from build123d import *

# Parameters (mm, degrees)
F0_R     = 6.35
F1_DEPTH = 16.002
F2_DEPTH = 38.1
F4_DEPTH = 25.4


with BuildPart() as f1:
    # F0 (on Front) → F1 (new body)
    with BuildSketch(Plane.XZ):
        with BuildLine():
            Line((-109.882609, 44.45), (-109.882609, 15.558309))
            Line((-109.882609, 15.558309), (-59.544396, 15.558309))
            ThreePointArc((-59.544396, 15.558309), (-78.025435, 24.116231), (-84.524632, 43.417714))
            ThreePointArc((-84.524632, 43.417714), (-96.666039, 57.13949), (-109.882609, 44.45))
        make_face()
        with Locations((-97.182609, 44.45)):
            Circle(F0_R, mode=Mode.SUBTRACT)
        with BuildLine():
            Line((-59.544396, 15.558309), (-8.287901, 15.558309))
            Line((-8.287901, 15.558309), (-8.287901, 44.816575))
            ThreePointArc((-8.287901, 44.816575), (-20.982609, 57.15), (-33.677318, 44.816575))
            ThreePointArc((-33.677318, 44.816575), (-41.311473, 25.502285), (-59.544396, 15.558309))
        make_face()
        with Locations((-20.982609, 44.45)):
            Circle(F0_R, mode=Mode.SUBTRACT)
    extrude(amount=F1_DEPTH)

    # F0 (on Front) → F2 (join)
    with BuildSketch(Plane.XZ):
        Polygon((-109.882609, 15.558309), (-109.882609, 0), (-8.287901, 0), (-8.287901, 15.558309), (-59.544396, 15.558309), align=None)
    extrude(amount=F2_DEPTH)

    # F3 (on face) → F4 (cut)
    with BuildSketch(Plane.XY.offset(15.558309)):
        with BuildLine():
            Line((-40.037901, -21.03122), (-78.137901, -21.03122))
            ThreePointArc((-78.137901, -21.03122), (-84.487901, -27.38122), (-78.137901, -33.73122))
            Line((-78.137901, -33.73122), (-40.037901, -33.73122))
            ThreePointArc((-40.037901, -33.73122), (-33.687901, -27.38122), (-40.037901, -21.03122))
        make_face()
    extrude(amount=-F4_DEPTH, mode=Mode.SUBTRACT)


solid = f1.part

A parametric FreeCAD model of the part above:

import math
import FreeCAD as App
import Part
import Sketcher
from FreeCAD import Vector
Q = App.Units.Quantity

doc = App.newDocument("Part")
body = doc.addObject("PartDesign::Body", "Body")
body.AllowCompound = True

# Sketch on XZ plane
sketch1 = body.newObject("Sketcher::SketchObject", "Sketch")
sketch1.AttachmentSupport = (doc.getObject("XZ_Plane"), [""])
sketch1.MapMode = "FlatFace"
sketch1.addGeometry([
    Part.LineSegment(Vector(-110, 44, 0), Vector(-110, 16, 0)),  # 0
    Part.LineSegment(Vector(-110, 16, 0), Vector(-60, 16, 0)),  # 1
    Part.ArcOfCircle(Part.Circle(Vector(-59, 41, 0), Vector(0, 0, 1), 26), math.radians(175), math.radians(268)),  # 2
    Part.ArcOfCircle(Part.Circle(Vector(-97, 44, 0), Vector(0, 0, 1), 13), math.radians(-5), math.radians(180)),  # 3
    Part.Circle(Vector(-97, 44, 0), Vector(0, 0, 1), 6),  # 4
    Part.LineSegment(Vector(-60, 16, 0), Vector(-8, 16, 0)),  # 5
    Part.LineSegment(Vector(-8, 16, 0), Vector(-8, 45, 0)),  # 6
    Part.ArcOfCircle(Part.Circle(Vector(-21, 44, 0), Vector(0, 0, 1), 13), math.radians(2), math.radians(178)),  # 7
    Part.ArcOfCircle(Part.Circle(Vector(-64, 46, 0), Vector(0, 0, 1), 30), math.radians(-81), math.radians(-2)),  # 8
    Part.Circle(Vector(-21, 44, 0), Vector(0, 0, 1), 6),  # 9
], False)
sketch1.addConstraint([
    Sketcher.Constraint("Coincident", 0, 2, 1, 1),
    Sketcher.Constraint("Coincident", 1, 2, 2, 2),
    Sketcher.Constraint("Tangent", 2, 1, 3, 1),
    Sketcher.Constraint("Tangent", 3, 2, 0, 1),
    Sketcher.Constraint("Coincident", 5, 2, 6, 1),
    Sketcher.Constraint("Coincident", 6, 2, 7, 1),
    Sketcher.Constraint("Tangent", 7, 2, 8, 2),
    Sketcher.Constraint("Coincident", 8, 1, 5, 1),
    Sketcher.Constraint("Vertical", 0),
    Sketcher.Constraint("Horizontal", 1),
    Sketcher.Constraint("Horizontal", 5),
    Sketcher.Constraint("Vertical", 6),
    Sketcher.Constraint("Coincident", 4, 3, 3, 3),
    Sketcher.Constraint("Coincident", 9, 3, 7, 3),
    Sketcher.Constraint("Coincident", 8, 1, 1, 2),
    Sketcher.Constraint("Equal", 3, 7),
    Sketcher.Constraint("Equal", 4, 9),
    Sketcher.Constraint("Horizontal", 4, 3, 7, 3),
    Sketcher.Constraint("Horizontal", 6, 2, 7, 2),
    Sketcher.Constraint("Diameter", 4, Q("0.5 in")),
    Sketcher.Constraint("Radius", 3, Q("0.5 in")),
    Sketcher.Constraint("DistanceX", 4, 3, 7, 3, Q("3 in")),
    Sketcher.Constraint("DistanceY", -1, 1, 3, 3, Q("1.75 in")),
    Sketcher.Constraint("Radius", 2, Q("25.774164 mm")),
    Sketcher.Constraint("Radius", 8, Q("30.488665 mm")),
    Sketcher.Constraint("DistanceY", 2, 3, 8, 3, Q("0.1721998 in")),
    Sketcher.Constraint("DistanceY", 0, 2, 0, 1, Q("28.891691 mm")),
    Sketcher.Constraint("DistanceX", 5, 2, -1, 1, Q("8.287901 mm")),
])
pad1 = body.newObject("PartDesign::Pad", "Pad")
pad1.Profile = sketch1
pad1.Length = Q("0.63 in")

# Sketch on XZ plane
sketch2 = body.newObject("Sketcher::SketchObject", "Sketch001")
sketch2.AttachmentSupport = (doc.getObject("XZ_Plane"), [""])
sketch2.MapMode = "FlatFace"
sketch2.addGeometry([
    Part.LineSegment(Vector(-110, 16, 0), Vector(-110, 0, 0)),
    Part.LineSegment(Vector(-110, 0, 0), Vector(-8, 0, 0)),
    Part.LineSegment(Vector(-8, 0, 0), Vector(-8, 16, 0)),
    Part.LineSegment(Vector(-8, 16, 0), Vector(-110, 16, 0)),
], False)
sketch2.addConstraint([
    Sketcher.Constraint("Coincident", 0, 2, 1, 1),
    Sketcher.Constraint("Coincident", 1, 2, 2, 1),
    Sketcher.Constraint("Coincident", 2, 2, 3, 1),
    Sketcher.Constraint("Coincident", 3, 2, 0, 1),
    Sketcher.Constraint("Vertical", 0),
    Sketcher.Constraint("Horizontal", 1),
    Sketcher.Constraint("Vertical", 2),
    Sketcher.Constraint("Horizontal", 3),
    Sketcher.Constraint("PointOnObject", 0, 2, -1),
    Sketcher.Constraint("DistanceY", 0, 2, 0, 1, Q("15.558309 mm")),
    Sketcher.Constraint("DistanceX", 1, 2, -1, 1, Q("8.287901 mm")),
    Sketcher.Constraint("DistanceX", 1, 1, 1, 2, Q("101.594708 mm")),
])
pad2 = body.newObject("PartDesign::Pad", "Pad001")
pad2.Profile = sketch2
pad2.Length = Q("1.5 in")

# Sketch on XY plane
sketch3 = body.newObject("Sketcher::SketchObject", "Sketch002")
sketch3.AttachmentSupport = (doc.getObject("XY_Plane"), [""])
sketch3.MapMode = "FlatFace"
sketch3.AttachmentOffset = App.Placement(Vector(0, 0, 15.558309), App.Rotation())
sketch3.addGeometry([
    Part.LineSegment(Vector(-40, -21, 0), Vector(-78, -21, 0)),
    Part.ArcOfCircle(Part.Circle(Vector(-78, -27, 0), Vector(0, 0, 1), 6), math.radians(90), math.radians(270)),
    Part.LineSegment(Vector(-78, -34, 0), Vector(-40, -34, 0)),
    Part.ArcOfCircle(Part.Circle(Vector(-40, -27, 0), Vector(0, 0, 1), 6), math.radians(-90), math.radians(90)),
], False)
sketch3.addConstraint([
    Sketcher.Constraint("Tangent", 0, 2, 1, 1),
    Sketcher.Constraint("Tangent", 1, 2, 2, 1),
    Sketcher.Constraint("Tangent", 2, 2, 3, 1),
    Sketcher.Constraint("Tangent", 3, 2, 0, 1),
    Sketcher.Constraint("Horizontal", 0),
    Sketcher.Constraint("Horizontal", 2),
    Sketcher.Constraint("Radius", 1, Q("0.25 in")),
    Sketcher.Constraint("DistanceX", 0, 2, 0, 1, Q("1.5 in")),
    Sketcher.Constraint("DistanceX", 1, 3, -1, 1, Q("78.137901 mm")),
    Sketcher.Constraint("DistanceY", 1, 3, -1, 1, Q("27.38122 mm")),
])
pocket1 = body.newObject("PartDesign::Pocket", "Pocket")
pocket1.Profile = sketch3
pocket1.Length = Q("1 in")

doc.recompute()
